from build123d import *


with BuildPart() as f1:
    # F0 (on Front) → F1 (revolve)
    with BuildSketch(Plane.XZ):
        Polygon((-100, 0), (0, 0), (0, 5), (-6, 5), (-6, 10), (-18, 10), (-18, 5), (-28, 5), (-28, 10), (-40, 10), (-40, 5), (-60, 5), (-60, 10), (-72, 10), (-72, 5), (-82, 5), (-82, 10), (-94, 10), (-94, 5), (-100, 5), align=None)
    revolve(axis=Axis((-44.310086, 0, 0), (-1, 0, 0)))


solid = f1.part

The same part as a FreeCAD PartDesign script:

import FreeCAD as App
import Part
import Sketcher

V = App.Vector

doc = App.newDocument("Part")
body = doc.addObject("PartDesign::Body", "Body")

sketch1 = body.newObject("Sketcher::SketchObject", "Sketch")
sketch1.AttachmentSupport = (doc.getObject("XZ_Plane"), [""])
sketch1.MapMode = "FlatFace"
sketch1.addGeometry(Part.LineSegment(V(-100, 0, 0), V(0, 0, 0)), False)
sketch1.addGeometry(Part.LineSegment(V(0, 0, 0), V(0, 5, 0)), False)
sketch1.addGeometry(Part.LineSegment(V(0, 5, 0), V(-6, 5, 0)), False)
sketch1.addGeometry(Part.LineSegment(V(-6, 5, 0), V(-6, 10, 0)), False)
sketch1.addGeometry(Part.LineSegment(V(-6, 10, 0), V(-18, 10, 0)), False)
sketch1.addGeometry(Part.LineSegment(V(-18, 10, 0), V(-18, 5, 0)), False)
sketch1.addGeometry(Part.LineSegment(V(-18, 5, 0), V(-28, 5, 0)), False)
sketch1.addGeometry(Part.LineSegment(V(-28, 5, 0), V(-28, 10, 0)), False)
sketch1.addGeometry(Part.LineSegment(V(-28, 10, 0), V(-40, 10, 0)), False)
sketch1.addGeometry(Part.LineSegment(V(-40, 10, 0), V(-40, 5, 0)), False)
sketch1.addGeometry(Part.LineSegment(V(-40, 5, 0), V(-60, 5, 0)), False)
sketch1.addGeometry(Part.LineSegment(V(-60, 5, 0), V(-60, 10, 0)), False)
sketch1.addGeometry(Part.LineSegment(V(-60, 10, 0), V(-72, 10, 0)), False)
sketch1.addGeometry(Part.LineSegment(V(-72, 10, 0), V(-72, 5, 0)), False)
sketch1.addGeometry(Part.LineSegment(V(-72, 5, 0), V(-82, 5, 0)), False)
sketch1.addGeometry(Part.LineSegment(V(-82, 5, 0), V(-82, 10, 0)), False)
sketch1.addGeometry(Part.LineSegment(V(-82, 10, 0), V(-94, 10, 0)), False)
sketch1.addGeometry(Part.LineSegment(V(-94, 10, 0), V(-94, 5, 0)), False)
sketch1.addGeometry(Part.LineSegment(V(-94, 5, 0), V(-100, 5, 0)), False)
sketch1.addGeometry(Part.LineSegment(V(-100, 5, 0), V(-100, 0, 0)), False)
sketch1.addConstraint(Sketcher.Constraint("Coincident", 0, 2, 1, 1))
sketch1.addConstraint(Sketcher.Constraint("Coincident", 1, 2, 2, 1))
sketch1.addConstraint(Sketcher.Constraint("Coincident", 2, 2, 3, 1))
sketch1.addConstraint(Sketcher.Constraint("Coincident", 3, 2, 4, 1))
sketch1.addConstraint(Sketcher.Constraint("Coincident", 4, 2, 5, 1))
sketch1.addConstraint(Sketcher.Constraint("Coincident", 5, 2, 6, 1))
sketch1.addConstraint(Sketcher.Constraint("Coincident", 6, 2, 7, 1))
sketch1.addConstraint(Sketcher.Constraint("Coincident", 7, 2, 8, 1))
sketch1.addConstraint(Sketcher.Constraint("Coincident", 8, 2, 9, 1))
sketch1.addConstraint(Sketcher.Constraint("Coincident", 9, 2, 10, 1))
sketch1.addConstraint(Sketcher.Constraint("Coincident", 10, 2, 11, 1))
sketch1.addConstraint(Sketcher.Constraint("Coincident", 11, 2, 12, 1))
sketch1.addConstraint(Sketcher.Constraint("Coincident", 12, 2, 13, 1))
sketch1.addConstraint(Sketcher.Constraint("Coincident", 13, 2, 14, 1))
sketch1.addConstraint(Sketcher.Constraint("Coincident", 14, 2, 15, 1))
sketch1.addConstraint(Sketcher.Constraint("Coincident", 15, 2, 16, 1))
sketch1.addConstraint(Sketcher.Constraint("Coincident", 16, 2, 17, 1))
sketch1.addConstraint(Sketcher.Constraint("Coincident", 17, 2, 18, 1))
sketch1.addConstraint(Sketcher.Constraint("Coincident", 18, 2, 19, 1))
sketch1.addConstraint(Sketcher.Constraint("Coincident", 19, 2, 0, 1))
sketch1.addConstraint(Sketcher.Constraint("Horizontal", 0))
sketch1.addConstraint(Sketcher.Constraint("Vertical", 1))
sketch1.addConstraint(Sketcher.Constraint("Horizontal", 2))
sketch1.addConstraint(Sketcher.Constraint("Vertical", 3))
sketch1.addConstraint(Sketcher.Constraint("Horizontal", 4))
sketch1.addConstraint(Sketcher.Constraint("Vertical", 5))
sketch1.addConstraint(Sketcher.Constraint("Horizontal", 6))
sketch1.addConstraint(Sketcher.Constraint("Vertical", 7))
sketch1.addConstraint(Sketcher.Constraint("Horizontal", 8))
sketch1.addConstraint(Sketcher.Constraint("Vertical", 9))
sketch1.addConstraint(Sketcher.Constraint("Horizontal", 10))
sketch1.addConstraint(Sketcher.Constraint("Vertical", 11))
sketch1.addConstraint(Sketcher.Constraint("Horizontal", 12))
sketch1.addConstraint(Sketcher.Constraint("Vertical", 13))
sketch1.addConstraint(Sketcher.Constraint("Horizontal", 14))
sketch1.addConstraint(Sketcher.Constraint("Vertical", 15))
sketch1.addConstraint(Sketcher.Constraint("Horizontal", 16))
sketch1.addConstraint(Sketcher.Constraint("Vertical", 17))
sketch1.addConstraint(Sketcher.Constraint("Horizontal", 18))
sketch1.addConstraint(Sketcher.Constraint("Vertical", 19))
sketch1.addConstraint(Sketcher.Constraint("Coincident", 0, 2, -1, 1))
sketch1.addConstraint(Sketcher.Constraint("Horizontal", 2, 2, 5, 2))
sketch1.addConstraint(Sketcher.Constraint("Horizontal", 4, 2, 7, 2))
sketch1.addConstraint(Sketcher.Constraint("Horizontal", 6, 2, 9, 2))
sketch1.addConstraint(Sketcher.Constraint("Horizontal", 8, 2, 11, 2))
sketch1.addConstraint(Sketcher.Constraint("Horizontal", 10, 2, 13, 2))
sketch1.addConstraint(Sketcher.Constraint("Horizontal", 12, 2, 15, 2))
sketch1.addConstraint(Sketcher.Constraint("Horizontal", 14, 2, 17, 2))
sketch1.addConstraint(Sketcher.Constraint("Equal", 4, 8))
sketch1.addConstraint(Sketcher.Constraint("Equal", 8, 12))
sketch1.addConstraint(Sketcher.Constraint("Equal", 6, 14))
sketch1.addConstraint(Sketcher.Constraint("Equal", 12, 16))
sketch1.addConstraint(Sketcher.Constraint("Equal", 2, 18))
sketch1.addConstraint(Sketcher.Constraint("Equal", 1, 3))
sketch1.addConstraint(Sketcher.Constraint("DistanceX", 0, 1, 0, 2, 100.0))
sketch1.addConstraint(Sketcher.Constraint("DistanceX", 2, 2, 2, 1, 6.0))
sketch1.addConstraint(Sketcher.Constraint("DistanceX", 4, 2, 4, 1, 12.0))
sketch1.addConstraint(Sketcher.Constraint("DistanceX", 6, 2, 6, 1, 10.0))
sketch1.addConstraint(Sketcher.Constraint("DistanceY", 1, 1, 1, 2, 5.0))
revolution = body.newObject("PartDesign::Revolution", "Revolution")
revolution.Profile = sketch1
revolution.ReferenceAxis = (sketch1, ["H_Axis"])
revolution.Angle = 360

doc.recompute()
